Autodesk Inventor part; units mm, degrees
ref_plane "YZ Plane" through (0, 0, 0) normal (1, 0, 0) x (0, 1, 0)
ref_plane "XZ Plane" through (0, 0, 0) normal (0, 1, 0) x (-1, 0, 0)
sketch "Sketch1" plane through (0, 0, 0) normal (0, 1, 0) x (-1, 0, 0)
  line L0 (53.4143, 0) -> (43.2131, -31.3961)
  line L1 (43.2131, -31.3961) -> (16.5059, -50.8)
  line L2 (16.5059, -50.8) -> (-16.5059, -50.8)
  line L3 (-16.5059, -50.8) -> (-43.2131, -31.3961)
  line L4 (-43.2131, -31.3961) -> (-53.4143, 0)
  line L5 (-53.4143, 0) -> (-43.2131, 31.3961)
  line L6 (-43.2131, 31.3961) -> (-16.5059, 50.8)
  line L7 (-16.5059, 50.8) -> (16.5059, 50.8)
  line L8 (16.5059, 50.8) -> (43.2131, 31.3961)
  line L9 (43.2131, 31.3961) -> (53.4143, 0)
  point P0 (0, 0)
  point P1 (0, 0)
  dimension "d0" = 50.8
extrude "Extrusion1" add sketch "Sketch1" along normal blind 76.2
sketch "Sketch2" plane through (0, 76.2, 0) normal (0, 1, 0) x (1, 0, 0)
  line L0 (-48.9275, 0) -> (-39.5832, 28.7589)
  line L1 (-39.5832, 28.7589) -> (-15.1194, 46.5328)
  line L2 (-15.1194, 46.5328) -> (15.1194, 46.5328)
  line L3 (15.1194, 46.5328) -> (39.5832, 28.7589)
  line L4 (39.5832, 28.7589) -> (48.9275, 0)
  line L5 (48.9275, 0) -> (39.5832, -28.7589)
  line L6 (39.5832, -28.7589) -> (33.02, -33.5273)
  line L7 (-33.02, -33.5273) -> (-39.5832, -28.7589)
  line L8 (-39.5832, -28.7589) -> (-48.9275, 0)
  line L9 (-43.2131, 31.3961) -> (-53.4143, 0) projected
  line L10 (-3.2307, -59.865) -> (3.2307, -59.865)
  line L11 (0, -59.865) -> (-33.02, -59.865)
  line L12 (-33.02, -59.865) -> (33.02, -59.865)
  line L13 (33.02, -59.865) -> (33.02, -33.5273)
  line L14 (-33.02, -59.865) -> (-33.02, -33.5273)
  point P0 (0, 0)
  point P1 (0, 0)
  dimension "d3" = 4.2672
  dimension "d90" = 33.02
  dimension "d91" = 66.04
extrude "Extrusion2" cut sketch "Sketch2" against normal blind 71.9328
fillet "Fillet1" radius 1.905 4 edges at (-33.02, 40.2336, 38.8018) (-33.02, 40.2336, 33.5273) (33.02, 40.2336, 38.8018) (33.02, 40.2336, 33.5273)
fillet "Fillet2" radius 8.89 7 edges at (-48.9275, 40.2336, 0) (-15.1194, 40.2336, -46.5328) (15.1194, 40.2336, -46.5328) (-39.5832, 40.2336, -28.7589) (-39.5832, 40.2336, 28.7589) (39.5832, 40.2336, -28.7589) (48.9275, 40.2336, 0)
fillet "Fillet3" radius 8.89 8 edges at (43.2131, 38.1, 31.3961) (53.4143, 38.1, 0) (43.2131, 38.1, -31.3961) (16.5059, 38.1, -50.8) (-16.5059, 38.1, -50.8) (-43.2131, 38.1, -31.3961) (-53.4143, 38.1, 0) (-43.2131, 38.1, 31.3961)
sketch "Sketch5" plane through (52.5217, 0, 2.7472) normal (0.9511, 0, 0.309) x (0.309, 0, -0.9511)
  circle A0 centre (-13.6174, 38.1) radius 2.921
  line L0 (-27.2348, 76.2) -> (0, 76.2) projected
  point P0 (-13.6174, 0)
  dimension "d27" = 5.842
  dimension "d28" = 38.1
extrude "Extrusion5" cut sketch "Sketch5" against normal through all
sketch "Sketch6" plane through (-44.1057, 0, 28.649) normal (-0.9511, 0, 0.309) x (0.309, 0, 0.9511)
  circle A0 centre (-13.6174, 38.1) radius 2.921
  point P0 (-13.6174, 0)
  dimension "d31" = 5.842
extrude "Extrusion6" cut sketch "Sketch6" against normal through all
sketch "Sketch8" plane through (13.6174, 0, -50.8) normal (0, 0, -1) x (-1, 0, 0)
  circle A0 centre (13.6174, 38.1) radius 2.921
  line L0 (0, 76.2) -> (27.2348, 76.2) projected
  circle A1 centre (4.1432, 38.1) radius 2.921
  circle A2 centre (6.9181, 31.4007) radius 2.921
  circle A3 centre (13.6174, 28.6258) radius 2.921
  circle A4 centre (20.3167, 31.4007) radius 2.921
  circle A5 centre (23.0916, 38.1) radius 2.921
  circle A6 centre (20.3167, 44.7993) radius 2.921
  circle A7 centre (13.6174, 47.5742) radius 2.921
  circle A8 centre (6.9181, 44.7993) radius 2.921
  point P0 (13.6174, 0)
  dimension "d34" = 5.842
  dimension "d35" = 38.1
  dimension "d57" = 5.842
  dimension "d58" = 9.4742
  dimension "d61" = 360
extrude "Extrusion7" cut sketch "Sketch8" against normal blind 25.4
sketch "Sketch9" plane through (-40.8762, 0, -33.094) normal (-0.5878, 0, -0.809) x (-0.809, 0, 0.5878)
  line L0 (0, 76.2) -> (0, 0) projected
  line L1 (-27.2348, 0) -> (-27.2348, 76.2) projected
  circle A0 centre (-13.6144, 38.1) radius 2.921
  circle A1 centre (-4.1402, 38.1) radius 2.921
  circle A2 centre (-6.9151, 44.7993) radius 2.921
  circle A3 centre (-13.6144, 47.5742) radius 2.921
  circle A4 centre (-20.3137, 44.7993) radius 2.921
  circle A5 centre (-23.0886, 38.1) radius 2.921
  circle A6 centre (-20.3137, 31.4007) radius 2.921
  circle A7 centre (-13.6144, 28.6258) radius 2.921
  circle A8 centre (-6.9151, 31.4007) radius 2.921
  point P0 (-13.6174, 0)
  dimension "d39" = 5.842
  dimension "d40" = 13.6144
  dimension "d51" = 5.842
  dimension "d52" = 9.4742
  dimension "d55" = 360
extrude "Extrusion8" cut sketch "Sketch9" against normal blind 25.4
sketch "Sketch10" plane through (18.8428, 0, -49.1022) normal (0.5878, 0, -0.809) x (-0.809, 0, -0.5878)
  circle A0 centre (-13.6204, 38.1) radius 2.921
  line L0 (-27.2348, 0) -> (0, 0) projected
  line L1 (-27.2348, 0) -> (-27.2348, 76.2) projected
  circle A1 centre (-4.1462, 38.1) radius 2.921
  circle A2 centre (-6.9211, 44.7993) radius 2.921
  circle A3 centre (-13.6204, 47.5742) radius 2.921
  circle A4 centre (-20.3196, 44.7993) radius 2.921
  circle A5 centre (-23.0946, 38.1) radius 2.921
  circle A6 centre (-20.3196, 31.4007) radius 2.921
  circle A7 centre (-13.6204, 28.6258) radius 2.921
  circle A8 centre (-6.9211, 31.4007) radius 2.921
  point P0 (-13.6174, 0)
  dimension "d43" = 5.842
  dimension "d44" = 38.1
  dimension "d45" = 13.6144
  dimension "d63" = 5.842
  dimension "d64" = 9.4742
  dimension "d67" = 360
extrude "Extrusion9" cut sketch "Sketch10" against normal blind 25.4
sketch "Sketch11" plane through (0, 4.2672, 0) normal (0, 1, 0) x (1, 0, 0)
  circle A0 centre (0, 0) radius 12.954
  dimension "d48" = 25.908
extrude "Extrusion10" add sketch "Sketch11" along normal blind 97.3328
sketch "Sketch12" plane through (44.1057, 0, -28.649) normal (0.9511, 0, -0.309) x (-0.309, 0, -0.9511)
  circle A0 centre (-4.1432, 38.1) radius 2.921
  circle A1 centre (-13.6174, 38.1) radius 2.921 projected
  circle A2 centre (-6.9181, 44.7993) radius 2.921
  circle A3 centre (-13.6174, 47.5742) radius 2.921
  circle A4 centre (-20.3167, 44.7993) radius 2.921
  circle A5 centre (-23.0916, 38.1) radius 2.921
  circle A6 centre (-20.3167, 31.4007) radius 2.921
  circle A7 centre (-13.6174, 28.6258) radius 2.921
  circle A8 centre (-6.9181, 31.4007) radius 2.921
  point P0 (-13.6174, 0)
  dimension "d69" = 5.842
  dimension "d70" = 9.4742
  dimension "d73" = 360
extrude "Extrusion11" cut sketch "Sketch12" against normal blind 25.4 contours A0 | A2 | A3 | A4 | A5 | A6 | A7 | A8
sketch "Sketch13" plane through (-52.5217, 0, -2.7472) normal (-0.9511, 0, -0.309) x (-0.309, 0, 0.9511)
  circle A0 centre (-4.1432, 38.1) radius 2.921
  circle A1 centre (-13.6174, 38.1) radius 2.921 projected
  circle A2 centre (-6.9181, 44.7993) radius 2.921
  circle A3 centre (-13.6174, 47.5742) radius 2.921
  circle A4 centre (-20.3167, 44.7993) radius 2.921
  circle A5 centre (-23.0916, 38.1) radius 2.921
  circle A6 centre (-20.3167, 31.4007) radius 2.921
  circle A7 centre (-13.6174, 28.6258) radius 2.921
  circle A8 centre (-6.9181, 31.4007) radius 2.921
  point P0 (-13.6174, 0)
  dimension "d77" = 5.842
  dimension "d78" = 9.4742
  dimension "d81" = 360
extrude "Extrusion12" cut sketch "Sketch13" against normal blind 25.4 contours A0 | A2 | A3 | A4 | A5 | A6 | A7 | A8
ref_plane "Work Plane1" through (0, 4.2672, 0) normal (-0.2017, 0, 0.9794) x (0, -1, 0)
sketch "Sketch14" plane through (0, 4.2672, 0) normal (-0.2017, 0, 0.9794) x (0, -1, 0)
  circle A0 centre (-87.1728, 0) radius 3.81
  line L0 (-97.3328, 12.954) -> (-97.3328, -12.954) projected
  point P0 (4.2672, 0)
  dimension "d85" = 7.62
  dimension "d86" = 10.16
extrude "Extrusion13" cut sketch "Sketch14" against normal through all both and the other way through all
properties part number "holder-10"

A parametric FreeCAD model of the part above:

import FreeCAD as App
import Part
import Sketcher
Q = App.Units.Quantity


def edges_at(feature, points):
    """Names of the edges that pass closest to the given points."""
    edges = feature.Shape.Edges
    near = lambda p: min(range(len(edges)), key=lambda i: edges[i].distToShape(Part.Vertex(*p))[0])
    return sorted({f"Edge{near(p) + 1}" for p in points})

doc = App.newDocument("Part")
body = doc.addObject("PartDesign::Body", "Body")

# Sketch on XZ plane
sketch1 = doc.addObject("Sketcher::SketchObject", "Sketch")
body.addObject(sketch1)
sketch1.AttachmentSupport = (doc.XZ_Plane, [""])
sketch1.MapMode = "FlatFace"
sketch1.addGeometry([
    Part.LineSegment(App.Vector(-43.2131, -31.3961, 0), App.Vector(-53.4143, 0, 0)),  # 0
    Part.LineSegment(App.Vector(-53.4143, 0, 0), App.Vector(-43.2131, 31.3961, 0)),  # 1
    Part.LineSegment(App.Vector(-43.2131, 31.3961, 0), App.Vector(-16.5059, 50.8, 0)),  # 2
    Part.LineSegment(App.Vector(-16.5059, 50.8, 0), App.Vector(16.5059, 50.8, 0)),  # 3
    Part.LineSegment(App.Vector(16.5059, 50.8, 0), App.Vector(43.2131, 31.3961, 0)),  # 4
    Part.LineSegment(App.Vector(43.2131, 31.3961, 0), App.Vector(53.4143, 0, 0)),  # 5
    Part.LineSegment(App.Vector(53.4143, 0, 0), App.Vector(43.2131, -31.3961, 0)),  # 6
    Part.LineSegment(App.Vector(43.2131, -31.3961, 0), App.Vector(16.5059, -50.8, 0)),  # 7
    Part.LineSegment(App.Vector(16.5059, -50.8, 0), App.Vector(-16.5059, -50.8, 0)),  # 8
    Part.LineSegment(App.Vector(-16.5059, -50.8, 0), App.Vector(-43.2131, -31.3961, 0)),  # 9
], False)
sketch1.addConstraint([
    Sketcher.Constraint("Coincident", 0, 2, 1, 1),
    Sketcher.Constraint("Coincident", 1, 2, 2, 1),
    Sketcher.Constraint("Coincident", 2, 2, 3, 1),
    Sketcher.Constraint("Coincident", 3, 2, 4, 1),
    Sketcher.Constraint("Coincident", 4, 2, 5, 1),
    Sketcher.Constraint("Coincident", 5, 2, 6, 1),
    Sketcher.Constraint("Coincident", 6, 2, 7, 1),
    Sketcher.Constraint("Coincident", 7, 2, 8, 1),
    Sketcher.Constraint("Coincident", 8, 2, 9, 1),
    Sketcher.Constraint("Coincident", 9, 2, 0, 1),
    Sketcher.Constraint("Horizontal", 3),
    Sketcher.Constraint("Horizontal", 8),
    Sketcher.Constraint("Symmetric", 0, 2, 5, 2, -1, 1),
    Sketcher.Constraint("Symmetric", 1, 2, 6, 2, -1, 1),
    Sketcher.Constraint("Symmetric", 2, 2, 7, 2, -1, 1),
    Sketcher.Constraint("Symmetric", 4, 2, 9, 2, -1, 1),
    Sketcher.Constraint("Symmetric", 1, 2, 4, 2, -2),
    Sketcher.Constraint("PointOnObject", 0, 2, -1),
    Sketcher.Constraint("Parallel", 4, 9),
    Sketcher.Constraint("Vertical", 3, 2, 7, 2),
    Sketcher.Constraint("Equal", 1, 2),
    Sketcher.Constraint("DistanceY", -1, 1, 2, 2, Q("2 in")),
    Sketcher.Constraint("Angle", 0, Q("108 deg")),
    Sketcher.Constraint("Angle", 2, Q("36 deg")),
    Sketcher.Constraint("DistanceX", 3, 1, 3, 2, 33.0118),
])
pad1 = doc.addObject("PartDesign::Pad", "Pad")
body.addObject(pad1)
pad1.Profile = sketch1
pad1.Length = Q("3 in")
pad1.Reversed = True

# Sketch on XZ plane
sketch2 = doc.addObject("Sketcher::SketchObject", "Sketch001")
body.addObject(sketch2)
sketch2.AttachmentSupport = (doc.XZ_Plane, [""])
sketch2.MapMode = "FlatFace"
sketch2.AttachmentOffset = App.Placement(App.Vector(0, 0, -3 * 25.4), App.Rotation())
sketch2.addGeometry([
    Part.LineSegment(App.Vector(-39.5832, -28.7589, 0), App.Vector(-48.9275, 0, 0)),  # 0
    Part.LineSegment(App.Vector(-48.9275, 0, 0), App.Vector(-39.5832, 28.7589, 0)),  # 1
    Part.LineSegment(App.Vector(-39.5832, 28.7589, 0), App.Vector(-33.02, 33.5273, 0)),  # 2
    Part.LineSegment(App.Vector(-33.02, 33.5273, 0), App.Vector(-33.02, 59.865, 0)),  # 3
    Part.LineSegment(App.Vector(-33.02, 59.865, 0), App.Vector(33.02, 59.865, 0)),  # 4
    Part.LineSegment(App.Vector(33.02, 59.865, 0), App.Vector(33.02, 33.5273, 0)),  # 5
    Part.LineSegment(App.Vector(33.02, 33.5273, 0), App.Vector(39.5832, 28.7589, 0)),  # 6
    Part.LineSegment(App.Vector(39.5832, 28.7589, 0), App.Vector(48.9275, 0, 0)),  # 7
    Part.LineSegment(App.Vector(48.9275, 0, 0), App.Vector(39.5832, -28.7589, 0)),  # 8
    Part.LineSegment(App.Vector(39.5832, -28.7589, 0), App.Vector(15.1194, -46.5328, 0)),  # 9
    Part.LineSegment(App.Vector(15.1194, -46.5328, 0), App.Vector(-15.1194, -46.5328, 0)),  # 10
    Part.LineSegment(App.Vector(-15.1194, -46.5328, 0), App.Vector(-39.5832, -28.7589, 0)),  # 11
], False)
sketch2.addConstraint([
    Sketcher.Constraint("Coincident", 0, 2, 1, 1),
    Sketcher.Constraint("Coincident", 1, 2, 2, 1),
    Sketcher.Constraint("Coincident", 2, 2, 3, 1),
    Sketcher.Constraint("Coincident", 3, 2, 4, 1),
    Sketcher.Constraint("Coincident", 4, 2, 5, 1),
    Sketcher.Constraint("Coincident", 5, 2, 6, 1),
    Sketcher.Constraint("Coincident", 6, 2, 7, 1),
    Sketcher.Constraint("Coincident", 7, 2, 8, 1),
    Sketcher.Constraint("Coincident", 8, 2, 9, 1),
    Sketcher.Constraint("Coincident", 9, 2, 10, 1),
    Sketcher.Constraint("Coincident", 10, 2, 11, 1),
    Sketcher.Constraint("Coincident", 11, 2, 0, 1),
    Sketcher.Constraint("Vertical", 3),
    Sketcher.Constraint("Horizontal", 4),
    Sketcher.Constraint("Vertical", 5),
    Sketcher.Constraint("Horizontal", 10),
    Sketcher.Constraint("Symmetric", 0, 2, 7, 2, -1, 1),
    Sketcher.Constraint("Symmetric", 1, 2, 8, 2, -1, 1),
    Sketcher.Constraint("Symmetric", 6, 2, 11, 2, -1, 1),
    Sketcher.Constraint("Symmetric", 2, 2, 5, 2, -2),
    Sketcher.Constraint("Symmetric", 1, 2, 6, 2, -2),
    Sketcher.Constraint("PointOnObject", 0, 2, -1),
    Sketcher.Constraint("Parallel", 2, 9),
    Sketcher.Constraint("Parallel", 6, 11),
    Sketcher.Constraint("Equal", 8, 9),
    Sketcher.Constraint("DistanceX", 4, 1, 4, 2, Q("2.6 in")),
    Sketcher.Constraint("Angle", 0, Q("108 deg")),
    Sketcher.Constraint("Angle", 2, Q("35.9997 deg")),
    Sketcher.Constraint("DistanceX", 10, 2, 10, 1, Q("1.1905 in")),
    Sketcher.Constraint("DistanceY", 9, 2, -1, 1, Q("1.832 in")),
    Sketcher.Constraint("DistanceY", 3, 1, 3, 2, 26.3377),
])
pocket1 = doc.addObject("PartDesign::Pocket", "Pocket")
body.addObject(pocket1)
pocket1.Profile = sketch2
pocket1.Length = Q("2.832 in")
pocket1.Reversed = True
doc.recompute()

fillet = doc.addObject("PartDesign::Fillet", "Fillet")
body.addObject(fillet)
fillet.Base = (pocket1, edges_at(pocket1, [
    (-33.02, 40.234, 38.802),
    (-33.02, 40.234, 33.527),
    (33.02, 40.234, 38.802),
    (33.02, 40.234, 33.527),
]))
fillet.Radius = Q("0.075 in")
doc.recompute()

fillet2 = doc.addObject("PartDesign::Fillet", "Fillet001")
body.addObject(fillet2)
fillet2.Base = (fillet, edges_at(fillet, [
    (-48.928, 40.234, 0),
    (-15.119, 40.234, -46.533),
    (15.119, 40.234, -46.533),
    (-39.583, 40.234, -28.759),
    (-39.583, 40.234, 28.759),
    (39.583, 40.234, -28.759),
    (48.928, 40.234, 0),
]))
fillet2.Radius = Q("0.35 in")
doc.recompute()

fillet3 = doc.addObject("PartDesign::Fillet", "Fillet002")
body.addObject(fillet3)
fillet3.Base = (fillet2, edges_at(fillet2, [
    (43.213, 38.1, 31.396),
    (53.414, 38.1, 0),
    (43.213, 38.1, -31.396),
    (16.506, 38.1, -50.8),
    (-16.506, 38.1, -50.8),
    (-43.213, 38.1, -31.396),
    (-53.414, 38.1, 0),
    (-43.213, 38.1, 31.396),
]))
fillet3.Radius = Q("0.35 in")

# Sketch on an angled plane
sketch3 = doc.addObject("Sketcher::SketchObject", "Sketch002")
body.addObject(sketch3)
sketch3.Placement = App.Placement(App.Vector(52.5217, 0, 2.7472), App.Rotation(App.Vector(0.309016994, 0, -0.951056516), App.Vector(0, 0.999999999, 0), App.Vector(0.951056516, 0, 0.309016994), "ZXY"))
sketch3.addGeometry(Part.Circle(App.Vector(-13.6174, 38.1, 0), App.Vector(0, 0, 1), 2.921), False)
sketch3.addConstraint([
    Sketcher.Constraint("Diameter", 0, Q("0.23 in")),
    Sketcher.Constraint("DistanceY", -1, 1, 0, 3, Q("1.5 in")),
    Sketcher.Constraint("DistanceX", 0, 3, -1, 1, 13.6174),
])
pocket2 = doc.addObject("PartDesign::Pocket", "Pocket001")
body.addObject(pocket2)
pocket2.Profile = sketch3
pocket2.Type = "ThroughAll"

# Sketch on an angled plane
sketch4 = doc.addObject("Sketcher::SketchObject", "Sketch003")
body.addObject(sketch4)
sketch4.Placement = App.Placement(App.Vector(-44.1057, 0, 28.649), App.Rotation(App.Vector(0.309016994, 0, 0.951056516), App.Vector(0, 0.999999999, 0), App.Vector(-0.951056516, 0, 0.309016994), "ZXY"))
sketch4.addGeometry(Part.Circle(App.Vector(-13.6174, 38.1, 0), App.Vector(0, 0, 1), 2.921), False)
sketch4.addConstraint([
    Sketcher.Constraint("Diameter", 0, Q("0.23 in")),
    Sketcher.Constraint("DistanceY", -1, 1, 0, 3, Q("1.5 in")),
    Sketcher.Constraint("DistanceX", 0, 3, -1, 1, 13.6174),
])
pocket3 = doc.addObject("PartDesign::Pocket", "Pocket002")
body.addObject(pocket3)
pocket3.Profile = sketch4
pocket3.Type = "ThroughAll"

# Sketch on XY plane
sketch5 = doc.addObject("Sketcher::SketchObject", "Sketch004")
body.addObject(sketch5)
sketch5.AttachmentSupport = (doc.XY_Plane, [""])
sketch5.MapMode = "FlatFace"
sketch5.AttachmentOffset = App.Placement(App.Vector(0, 0, -2 * 25.4), App.Rotation())
sketch5.addGeometry([
    Part.Circle(App.Vector(0, 38.1, 0), App.Vector(0, 0, 1), 2.921),  # 0
    Part.Circle(App.Vector(9.4742, 38.1, 0), App.Vector(0, 0, 1), 2.921),  # 1
    Part.Circle(App.Vector(6.6993, 31.4007, 0), App.Vector(0, 0, 1), 2.921),  # 2
    Part.Circle(App.Vector(0, 28.6258, 0), App.Vector(0, 0, 1), 2.921),  # 3
    Part.Circle(App.Vector(-6.6993, 31.4007, 0), App.Vector(0, 0, 1), 2.921),  # 4
    Part.Circle(App.Vector(-9.4742, 38.1, 0), App.Vector(0, 0, 1), 2.921),  # 5
    Part.Circle(App.Vector(-6.6993, 44.7993, 0), App.Vector(0, 0, 1), 2.921),  # 6
    Part.Circle(App.Vector(0, 47.5742, 0), App.Vector(0, 0, 1), 2.921),  # 7
    Part.Circle(App.Vector(6.6993, 44.7993, 0), App.Vector(0, 0, 1), 2.921),  # 8
], False)
sketch5.addConstraint([
    Sketcher.Constraint("Equal", 0, 1),
    Sketcher.Constraint("Equal", 1, 2),
    Sketcher.Constraint("Equal", 2, 3),
    Sketcher.Constraint("Equal", 3, 4),
    Sketcher.Constraint("Equal", 4, 5),
    Sketcher.Constraint("Equal", 5, 6),
    Sketcher.Constraint("Equal", 6, 7),
    Sketcher.Constraint("Equal", 7, 8),
    Sketcher.Constraint("Symmetric", 2, 3, 4, 3, -2),
    Sketcher.Constraint("Symmetric", 1, 3, 5, 3, -2),
    Sketcher.Constraint("Symmetric", 6, 3, 8, 3, -2),
    Sketcher.Constraint("PointOnObject", 0, 3, -2),
    Sketcher.Constraint("PointOnObject", 3, 3, -2),
    Sketcher.Constraint("PointOnObject", 7, 3, -2),
    Sketcher.Constraint("Horizontal", 0, 3, 1, 3),
    Sketcher.Constraint("Vertical", 4, 3, 6, 3),
    Sketcher.Constraint("Diameter", 0, Q("0.23 in")),
    Sketcher.Constraint("DistanceY", -1, 1, 0, 3, Q("1.5 in")),
    Sketcher.Constraint("DistanceX", -1, 1, 1, 3, Q("0.373 in")),
    Sketcher.Constraint("DistanceY", 3, 3, 0, 3, Q("0.373 in")),
    Sketcher.Constraint("DistanceY", 0, 3, 7, 3, Q("0.373 in")),
    Sketcher.Constraint("DistanceX", 4, 3, 2, 3, Q("0.5275 in")),
    Sketcher.Constraint("DistanceY", 4, 3, 6, 3, Q("0.5275 in")),
    Sketcher.Constraint("DistanceY", -1, 1, 2, 3, 31.4007),
])
pocket4 = doc.addObject("PartDesign::Pocket", "Pocket003")
body.addObject(pocket4)
pocket4.Profile = sketch5
pocket4.Length = Q("1 in")
pocket4.Reversed = True

# Sketch on an angled plane
sketch6 = doc.addObject("Sketcher::SketchObject", "Sketch005")
body.addObject(sketch6)
sketch6.Placement = App.Placement(App.Vector(-40.8762, 0, -33.094), App.Rotation(App.Vector(-0.809016994, 0, 0.587785252), App.Vector(0, 0.999999999, 0), App.Vector(-0.587785252, 0, -0.809016994), "ZXY"))
sketch6.addGeometry([
    Part.Circle(App.Vector(-13.6144, 38.1, 0), App.Vector(0, 0, 1), 2.921),  # 0
    Part.Circle(App.Vector(-4.1402, 38.1, 0), App.Vector(0, 0, 1), 2.921),  # 1
    Part.Circle(App.Vector(-6.9151, 44.7993, 0), App.Vector(0, 0, 1), 2.921),  # 2
    Part.Circle(App.Vector(-13.6144, 47.5742, 0), App.Vector(0, 0, 1), 2.921),  # 3
    Part.Circle(App.Vector(-20.3137, 44.7993, 0), App.Vector(0, 0, 1), 2.921),  # 4
    Part.Circle(App.Vector(-23.0886, 38.1, 0), App.Vector(0, 0, 1), 2.921),  # 5
    Part.Circle(App.Vector(-20.3137, 31.4007, 0), App.Vector(0, 0, 1), 2.921),  # 6
    Part.Circle(App.Vector(-13.6144, 28.6258, 0), App.Vector(0, 0, 1), 2.921),  # 7
    Part.Circle(App.Vector(-6.9151, 31.4007, 0), App.Vector(0, 0, 1), 2.921),  # 8
], False)
sketch6.addConstraint([
    Sketcher.Constraint("Equal", 0, 1),
    Sketcher.Constraint("Equal", 1, 2),
    Sketcher.Constraint("Equal", 2, 3),
    Sketcher.Constraint("Equal", 3, 4),
    Sketcher.Constraint("Equal", 4, 5),
    Sketcher.Constraint("Equal", 5, 6),
    Sketcher.Constraint("Equal", 6, 7),
    Sketcher.Constraint("Equal", 7, 8),
    Sketcher.Constraint("Horizontal", 0, 3, 1, 3),
    Sketcher.Constraint("Horizontal", 2, 3, 4, 3),
    Sketcher.Constraint("Horizontal", 1, 3, 5, 3),
    Sketcher.Constraint("Horizontal", 6, 3, 8, 3),
    Sketcher.Constraint("Vertical", 0, 3, 3, 3),
    Sketcher.Constraint("Vertical", 4, 3, 6, 3),
    Sketcher.Constraint("Vertical", 3, 3, 7, 3),
    Sketcher.Constraint("Vertical", 2, 3, 8, 3),
    Sketcher.Constraint("Diameter", 0, Q("0.23 in")),
    Sketcher.Constraint("DistanceX", 0, 3, -1, 1, Q("0.536 in")),
    Sketcher.Constraint("DistanceX", 0, 3, 1, 3, Q("0.373 in")),
    Sketcher.Constraint("DistanceY", 0, 3, 3, 3, Q("0.373 in")),
    Sketcher.Constraint("DistanceX", 5, 3, 0, 3, Q("0.373 in")),
    Sketcher.Constraint("DistanceY", 7, 3, 0, 3, Q("0.373 in")),
    Sketcher.Constraint("DistanceY", -1, 1, 0, 3, Q("1.5 in")),
    Sketcher.Constraint("DistanceX", 4, 3, 2, 3, Q("0.5275 in")),
    Sketcher.Constraint("DistanceY", 6, 3, 4, 3, Q("0.5275 in")),
    Sketcher.Constraint("DistanceX", 2, 3, -1, 1, 6.915),
    Sketcher.Constraint("DistanceY", -1, 1, 2, 3, 44.7993),
])
pocket5 = doc.addObject("PartDesign::Pocket", "Pocket004")
body.addObject(pocket5)
pocket5.Profile = sketch6
pocket5.Length = Q("1 in")

# Sketch on an angled plane
sketch7 = doc.addObject("Sketcher::SketchObject", "Sketch006")
body.addObject(sketch7)
sketch7.Placement = App.Placement(App.Vector(18.8428, 0, -49.1022), App.Rotation(App.Vector(-0.809016994, 0, -0.587785252), App.Vector(0, 0.999999999, 0), App.Vector(0.587785252, 0, -0.809016994), "ZXY"))
sketch7.addGeometry([
    Part.Circle(App.Vector(-13.6204, 38.1, 0), App.Vector(0, 0, 1), 2.921),  # 0
    Part.Circle(App.Vector(-4.1462, 38.1, 0), App.Vector(0, 0, 1), 2.921),  # 1
    Part.Circle(App.Vector(-6.9211, 44.7993, 0), App.Vector(0, 0, 1), 2.921),  # 2
    Part.Circle(App.Vector(-13.6204, 47.5742, 0), App.Vector(0, 0, 1), 2.921),  # 3
    Part.Circle(App.Vector(-20.3196, 44.7993, 0), App.Vector(0, 0, 1), 2.921),  # 4
    Part.Circle(App.Vector(-23.0946, 38.1, 0), App.Vector(0, 0, 1), 2.921),  # 5
    Part.Circle(App.Vector(-20.3196, 31.4007, 0), App.Vector(0, 0, 1), 2.921),  # 6
    Part.Circle(App.Vector(-13.6204, 28.6258, 0), App.Vector(0, 0, 1), 2.921),  # 7
    Part.Circle(App.Vector(-6.9211, 31.4007, 0), App.Vector(0, 0, 1), 2.921),  # 8
], False)
sketch7.addConstraint([
    Sketcher.Constraint("Equal", 0, 1),
    Sketcher.Constraint("Equal", 1, 2),
    Sketcher.Constraint("Equal", 2, 3),
    Sketcher.Constraint("Equal", 3, 4),
    Sketcher.Constraint("Equal", 4, 5),
    Sketcher.Constraint("Equal", 5, 6),
    Sketcher.Constraint("Equal", 6, 7),
    Sketcher.Constraint("Equal", 7, 8),
    Sketcher.Constraint("Horizontal", 0, 3, 1, 3),
    Sketcher.Constraint("Horizontal", 2, 3, 4, 3),
    Sketcher.Constraint("Horizontal", 1, 3, 5, 3),
    Sketcher.Constraint("Horizontal", 6, 3, 8, 3),
    Sketcher.Constraint("Vertical", 0, 3, 3, 3),
    Sketcher.Constraint("Vertical", 4, 3, 6, 3),
    Sketcher.Constraint("Vertical", 3, 3, 7, 3),
    Sketcher.Constraint("Vertical", 2, 3, 8, 3),
    Sketcher.Constraint("Diameter", 0, Q("0.23 in")),
    Sketcher.Constraint("DistanceY", -1, 1, 0, 3, Q("1.5 in")),
    Sketcher.Constraint("DistanceX", 0, 3, 1, 3, Q("0.373 in")),
    Sketcher.Constraint("DistanceY", 0, 3, 3, 3, Q("0.373 in")),
    Sketcher.Constraint("DistanceX", 5, 3, 0, 3, Q("0.373 in")),
    Sketcher.Constraint("DistanceY", 7, 3, 0, 3, Q("0.373 in")),
    Sketcher.Constraint("DistanceX", 4, 3, 2, 3, Q("0.5275 in")),
    Sketcher.Constraint("DistanceY", 6, 3, 4, 3, Q("0.5275 in")),
    Sketcher.Constraint("DistanceX", 0, 3, -1, 1, 13.6204),
    Sketcher.Constraint("DistanceX", 2, 3, -1, 1, 6.921),
    Sketcher.Constraint("DistanceY", -1, 1, 2, 3, 44.7993),
])
pocket6 = doc.addObject("PartDesign::Pocket", "Pocket005")
body.addObject(pocket6)
pocket6.Profile = sketch7
pocket6.Length = Q("1 in")

# Sketch on XZ plane
sketch8 = doc.addObject("Sketcher::SketchObject", "Sketch007")
body.addObject(sketch8)
sketch8.AttachmentSupport = (doc.XZ_Plane, [""])
sketch8.MapMode = "FlatFace"
sketch8.AttachmentOffset = App.Placement(App.Vector(0, 0, -0.168 * 25.4), App.Rotation())
sketch8.addGeometry(Part.Circle(App.Vector(0, 0, 0), App.Vector(0, 0, 1), 12.954), False)
sketch8.addConstraint([
    Sketcher.Constraint("Coincident", 0, 3, -1, 1),
    Sketcher.Constraint("Diameter", 0, Q("1.02 in")),
])
pad2 = doc.addObject("PartDesign::Pad", "Pad001")
body.addObject(pad2)
pad2.Profile = sketch8
pad2.Length = Q("3.832 in")
pad2.Reversed = True

# Sketch on an angled plane
sketch9 = doc.addObject("Sketcher::SketchObject", "Sketch008")
body.addObject(sketch9)
sketch9.Placement = App.Placement(App.Vector(44.1057, 0, -28.649), App.Rotation(App.Vector(-0.309016994, 0, -0.951056516), App.Vector(0, 0.999999999, 0), App.Vector(0.951056516, 0, -0.309016994), "ZXY"))
sketch9.addGeometry([
    Part.Circle(App.Vector(-4.1432, 38.1, 0), App.Vector(0, 0, 1), 2.921),  # 0
    Part.Circle(App.Vector(-6.9181, 44.7993, 0), App.Vector(0, 0, 1), 2.921),  # 1
    Part.Circle(App.Vector(-13.6174, 47.5742, 0), App.Vector(0, 0, 1), 2.921),  # 2
    Part.Circle(App.Vector(-20.3167, 44.7993, 0), App.Vector(0, 0, 1), 2.921),  # 3
    Part.Circle(App.Vector(-23.0916, 38.1, 0), App.Vector(0, 0, 1), 2.921),  # 4
    Part.Circle(App.Vector(-20.3167, 31.4007, 0), App.Vector(0, 0, 1), 2.921),  # 5
    Part.Circle(App.Vector(-13.6174, 28.6258, 0), App.Vector(0, 0, 1), 2.921),  # 6
    Part.Circle(App.Vector(-6.9181, 31.4007, 0), App.Vector(0, 0, 1), 2.921),  # 7
], False)
sketch9.addConstraint([
    Sketcher.Constraint("Equal", 0, 1),
    Sketcher.Constraint("Equal", 1, 2),
    Sketcher.Constraint("Equal", 2, 3),
    Sketcher.Constraint("Equal", 3, 4),
    Sketcher.Constraint("Equal", 4, 5),
    Sketcher.Constraint("Equal", 5, 6),
    Sketcher.Constraint("Equal", 6, 7),
    Sketcher.Constraint("Horizontal", 1, 3, 3, 3),
    Sketcher.Constraint("Horizontal", 0, 3, 4, 3),
    Sketcher.Constraint("Horizontal", 5, 3, 7, 3),
    Sketcher.Constraint("Vertical", 3, 3, 5, 3),
    Sketcher.Constraint("Vertical", 2, 3, 6, 3),
    Sketcher.Constraint("Vertical", 1, 3, 7, 3),
    Sketcher.Constraint("Diameter", 0, Q("0.23 in")),
    Sketcher.Constraint("DistanceX", 2, 3, 0, 3, Q("0.373 in")),
    Sketcher.Constraint("DistanceY", 0, 3, 2, 3, Q("0.373 in")),
    Sketcher.Constraint("DistanceX", 4, 3, 2, 3, Q("0.373 in")),
    Sketcher.Constraint("DistanceY", 6, 3, 0, 3, Q("0.373 in")),
    Sketcher.Constraint("DistanceY", -1, 1, 0, 3, Q("1.5 in")),
    Sketcher.Constraint("DistanceX", 3, 3, 1, 3, Q("0.5275 in")),
    Sketcher.Constraint("DistanceY", 5, 3, 3, 3, Q("0.5275 in")),
    Sketcher.Constraint("DistanceX", 0, 3, -1, 1, 4.1432),
    Sketcher.Constraint("DistanceX", 1, 3, -1, 1, 6.918),
    Sketcher.Constraint("DistanceY", -1, 1, 1, 3, 44.7993),
])
pocket7 = doc.addObject("PartDesign::Pocket", "Pocket006")
body.addObject(pocket7)
pocket7.Profile = sketch9
pocket7.Length = Q("1 in")

# Sketch on an angled plane
sketch10 = doc.addObject("Sketcher::SketchObject", "Sketch009")
body.addObject(sketch10)
sketch10.Placement = App.Placement(App.Vector(-52.5217, 0, -2.7472), App.Rotation(App.Vector(-0.309016994, 0, 0.951056516), App.Vector(0, 0.999999999, 0), App.Vector(-0.951056516, 0, -0.309016994), "ZXY"))
sketch10.addGeometry([
    Part.Circle(App.Vector(-4.1432, 38.1, 0), App.Vector(0, 0, 1), 2.921),  # 0
    Part.Circle(App.Vector(-6.9181, 44.7993, 0), App.Vector(0, 0, 1), 2.921),  # 1
    Part.Circle(App.Vector(-13.6174, 47.5742, 0), App.Vector(0, 0, 1), 2.921),  # 2
    Part.Circle(App.Vector(-20.3167, 44.7993, 0), App.Vector(0, 0, 1), 2.921),  # 3
    Part.Circle(App.Vector(-23.0916, 38.1, 0), App.Vector(0, 0, 1), 2.921),  # 4
    Part.Circle(App.Vector(-20.3167, 31.4007, 0), App.Vector(0, 0, 1), 2.921),  # 5
    Part.Circle(App.Vector(-13.6174, 28.6258, 0), App.Vector(0, 0, 1), 2.921),  # 6
    Part.Circle(App.Vector(-6.9181, 31.4007, 0), App.Vector(0, 0, 1), 2.921),  # 7
], False)
sketch10.addConstraint([
    Sketcher.Constraint("Equal", 0, 1),
    Sketcher.Constraint("Equal", 1, 2),
    Sketcher.Constraint("Equal", 2, 3),
    Sketcher.Constraint("Equal", 3, 4),
    Sketcher.Constraint("Equal", 4, 5),
    Sketcher.Constraint("Equal", 5, 6),
    Sketcher.Constraint("Equal", 6, 7),
    Sketcher.Constraint("Horizontal", 1, 3, 3, 3),
    Sketcher.Constraint("Horizontal", 0, 3, 4, 3),
    Sketcher.Constraint("Horizontal", 5, 3, 7, 3),
    Sketcher.Constraint("Vertical", 3, 3, 5, 3),
    Sketcher.Constraint("Vertical", 2, 3, 6, 3),
    Sketcher.Constraint("Vertical", 1, 3, 7, 3),
    Sketcher.Constraint("Diameter", 0, Q("0.23 in")),
    Sketcher.Constraint("DistanceX", 2, 3, 0, 3, Q("0.373 in")),
    Sketcher.Constraint("DistanceY", 0, 3, 2, 3, Q("0.373 in")),
    Sketcher.Constraint("DistanceX", 4, 3, 2, 3, Q("0.373 in")),
    Sketcher.Constraint("DistanceY", 6, 3, 0, 3, Q("0.373 in")),
    Sketcher.Constraint("DistanceY", -1, 1, 0, 3, Q("1.5 in")),
    Sketcher.Constraint("DistanceX", 3, 3, 1, 3, Q("0.5275 in")),
    Sketcher.Constraint("DistanceY", 5, 3, 3, 3, Q("0.5275 in")),
    Sketcher.Constraint("DistanceX", 0, 3, -1, 1, 4.1432),
    Sketcher.Constraint("DistanceX", 1, 3, -1, 1, 6.918),
    Sketcher.Constraint("DistanceY", -1, 1, 1, 3, 44.7993),
])
pocket8 = doc.addObject("PartDesign::Pocket", "Pocket007")
body.addObject(pocket8)
pocket8.Profile = sketch10
pocket8.Length = Q("1 in")

# Sketch on an angled plane
sketch11 = doc.addObject("Sketcher::SketchObject", "Sketch010")
body.addObject(sketch11)
sketch11.Placement = App.Placement(App.Vector(0, 4.2672, 0), App.Rotation(App.Vector(0, -1, 0), App.Vector(0.979445423, 0, 0.201709354), App.Vector(-0.201709354, 0, 0.979445423), "ZXY"))
sketch11.addGeometry(Part.Circle(App.Vector(-87.1728, 0, 0), App.Vector(0, 0, 1), 3.81), False)
sketch11.addConstraint([
    Sketcher.Constraint("PointOnObject", 0, 3, -1),
    Sketcher.Constraint("Diameter", 0, Q("0.3 in")),
    Sketcher.Constraint("DistanceX", 0, 3, -1, 1, Q("3.432 in")),
])
pocket9 = doc.addObject("PartDesign::Pocket", "Pocket008")
body.addObject(pocket9)
pocket9.Profile = sketch11
pocket9.Type = "ThroughAll"
pocket9.Midplane = True

doc.recompute()
